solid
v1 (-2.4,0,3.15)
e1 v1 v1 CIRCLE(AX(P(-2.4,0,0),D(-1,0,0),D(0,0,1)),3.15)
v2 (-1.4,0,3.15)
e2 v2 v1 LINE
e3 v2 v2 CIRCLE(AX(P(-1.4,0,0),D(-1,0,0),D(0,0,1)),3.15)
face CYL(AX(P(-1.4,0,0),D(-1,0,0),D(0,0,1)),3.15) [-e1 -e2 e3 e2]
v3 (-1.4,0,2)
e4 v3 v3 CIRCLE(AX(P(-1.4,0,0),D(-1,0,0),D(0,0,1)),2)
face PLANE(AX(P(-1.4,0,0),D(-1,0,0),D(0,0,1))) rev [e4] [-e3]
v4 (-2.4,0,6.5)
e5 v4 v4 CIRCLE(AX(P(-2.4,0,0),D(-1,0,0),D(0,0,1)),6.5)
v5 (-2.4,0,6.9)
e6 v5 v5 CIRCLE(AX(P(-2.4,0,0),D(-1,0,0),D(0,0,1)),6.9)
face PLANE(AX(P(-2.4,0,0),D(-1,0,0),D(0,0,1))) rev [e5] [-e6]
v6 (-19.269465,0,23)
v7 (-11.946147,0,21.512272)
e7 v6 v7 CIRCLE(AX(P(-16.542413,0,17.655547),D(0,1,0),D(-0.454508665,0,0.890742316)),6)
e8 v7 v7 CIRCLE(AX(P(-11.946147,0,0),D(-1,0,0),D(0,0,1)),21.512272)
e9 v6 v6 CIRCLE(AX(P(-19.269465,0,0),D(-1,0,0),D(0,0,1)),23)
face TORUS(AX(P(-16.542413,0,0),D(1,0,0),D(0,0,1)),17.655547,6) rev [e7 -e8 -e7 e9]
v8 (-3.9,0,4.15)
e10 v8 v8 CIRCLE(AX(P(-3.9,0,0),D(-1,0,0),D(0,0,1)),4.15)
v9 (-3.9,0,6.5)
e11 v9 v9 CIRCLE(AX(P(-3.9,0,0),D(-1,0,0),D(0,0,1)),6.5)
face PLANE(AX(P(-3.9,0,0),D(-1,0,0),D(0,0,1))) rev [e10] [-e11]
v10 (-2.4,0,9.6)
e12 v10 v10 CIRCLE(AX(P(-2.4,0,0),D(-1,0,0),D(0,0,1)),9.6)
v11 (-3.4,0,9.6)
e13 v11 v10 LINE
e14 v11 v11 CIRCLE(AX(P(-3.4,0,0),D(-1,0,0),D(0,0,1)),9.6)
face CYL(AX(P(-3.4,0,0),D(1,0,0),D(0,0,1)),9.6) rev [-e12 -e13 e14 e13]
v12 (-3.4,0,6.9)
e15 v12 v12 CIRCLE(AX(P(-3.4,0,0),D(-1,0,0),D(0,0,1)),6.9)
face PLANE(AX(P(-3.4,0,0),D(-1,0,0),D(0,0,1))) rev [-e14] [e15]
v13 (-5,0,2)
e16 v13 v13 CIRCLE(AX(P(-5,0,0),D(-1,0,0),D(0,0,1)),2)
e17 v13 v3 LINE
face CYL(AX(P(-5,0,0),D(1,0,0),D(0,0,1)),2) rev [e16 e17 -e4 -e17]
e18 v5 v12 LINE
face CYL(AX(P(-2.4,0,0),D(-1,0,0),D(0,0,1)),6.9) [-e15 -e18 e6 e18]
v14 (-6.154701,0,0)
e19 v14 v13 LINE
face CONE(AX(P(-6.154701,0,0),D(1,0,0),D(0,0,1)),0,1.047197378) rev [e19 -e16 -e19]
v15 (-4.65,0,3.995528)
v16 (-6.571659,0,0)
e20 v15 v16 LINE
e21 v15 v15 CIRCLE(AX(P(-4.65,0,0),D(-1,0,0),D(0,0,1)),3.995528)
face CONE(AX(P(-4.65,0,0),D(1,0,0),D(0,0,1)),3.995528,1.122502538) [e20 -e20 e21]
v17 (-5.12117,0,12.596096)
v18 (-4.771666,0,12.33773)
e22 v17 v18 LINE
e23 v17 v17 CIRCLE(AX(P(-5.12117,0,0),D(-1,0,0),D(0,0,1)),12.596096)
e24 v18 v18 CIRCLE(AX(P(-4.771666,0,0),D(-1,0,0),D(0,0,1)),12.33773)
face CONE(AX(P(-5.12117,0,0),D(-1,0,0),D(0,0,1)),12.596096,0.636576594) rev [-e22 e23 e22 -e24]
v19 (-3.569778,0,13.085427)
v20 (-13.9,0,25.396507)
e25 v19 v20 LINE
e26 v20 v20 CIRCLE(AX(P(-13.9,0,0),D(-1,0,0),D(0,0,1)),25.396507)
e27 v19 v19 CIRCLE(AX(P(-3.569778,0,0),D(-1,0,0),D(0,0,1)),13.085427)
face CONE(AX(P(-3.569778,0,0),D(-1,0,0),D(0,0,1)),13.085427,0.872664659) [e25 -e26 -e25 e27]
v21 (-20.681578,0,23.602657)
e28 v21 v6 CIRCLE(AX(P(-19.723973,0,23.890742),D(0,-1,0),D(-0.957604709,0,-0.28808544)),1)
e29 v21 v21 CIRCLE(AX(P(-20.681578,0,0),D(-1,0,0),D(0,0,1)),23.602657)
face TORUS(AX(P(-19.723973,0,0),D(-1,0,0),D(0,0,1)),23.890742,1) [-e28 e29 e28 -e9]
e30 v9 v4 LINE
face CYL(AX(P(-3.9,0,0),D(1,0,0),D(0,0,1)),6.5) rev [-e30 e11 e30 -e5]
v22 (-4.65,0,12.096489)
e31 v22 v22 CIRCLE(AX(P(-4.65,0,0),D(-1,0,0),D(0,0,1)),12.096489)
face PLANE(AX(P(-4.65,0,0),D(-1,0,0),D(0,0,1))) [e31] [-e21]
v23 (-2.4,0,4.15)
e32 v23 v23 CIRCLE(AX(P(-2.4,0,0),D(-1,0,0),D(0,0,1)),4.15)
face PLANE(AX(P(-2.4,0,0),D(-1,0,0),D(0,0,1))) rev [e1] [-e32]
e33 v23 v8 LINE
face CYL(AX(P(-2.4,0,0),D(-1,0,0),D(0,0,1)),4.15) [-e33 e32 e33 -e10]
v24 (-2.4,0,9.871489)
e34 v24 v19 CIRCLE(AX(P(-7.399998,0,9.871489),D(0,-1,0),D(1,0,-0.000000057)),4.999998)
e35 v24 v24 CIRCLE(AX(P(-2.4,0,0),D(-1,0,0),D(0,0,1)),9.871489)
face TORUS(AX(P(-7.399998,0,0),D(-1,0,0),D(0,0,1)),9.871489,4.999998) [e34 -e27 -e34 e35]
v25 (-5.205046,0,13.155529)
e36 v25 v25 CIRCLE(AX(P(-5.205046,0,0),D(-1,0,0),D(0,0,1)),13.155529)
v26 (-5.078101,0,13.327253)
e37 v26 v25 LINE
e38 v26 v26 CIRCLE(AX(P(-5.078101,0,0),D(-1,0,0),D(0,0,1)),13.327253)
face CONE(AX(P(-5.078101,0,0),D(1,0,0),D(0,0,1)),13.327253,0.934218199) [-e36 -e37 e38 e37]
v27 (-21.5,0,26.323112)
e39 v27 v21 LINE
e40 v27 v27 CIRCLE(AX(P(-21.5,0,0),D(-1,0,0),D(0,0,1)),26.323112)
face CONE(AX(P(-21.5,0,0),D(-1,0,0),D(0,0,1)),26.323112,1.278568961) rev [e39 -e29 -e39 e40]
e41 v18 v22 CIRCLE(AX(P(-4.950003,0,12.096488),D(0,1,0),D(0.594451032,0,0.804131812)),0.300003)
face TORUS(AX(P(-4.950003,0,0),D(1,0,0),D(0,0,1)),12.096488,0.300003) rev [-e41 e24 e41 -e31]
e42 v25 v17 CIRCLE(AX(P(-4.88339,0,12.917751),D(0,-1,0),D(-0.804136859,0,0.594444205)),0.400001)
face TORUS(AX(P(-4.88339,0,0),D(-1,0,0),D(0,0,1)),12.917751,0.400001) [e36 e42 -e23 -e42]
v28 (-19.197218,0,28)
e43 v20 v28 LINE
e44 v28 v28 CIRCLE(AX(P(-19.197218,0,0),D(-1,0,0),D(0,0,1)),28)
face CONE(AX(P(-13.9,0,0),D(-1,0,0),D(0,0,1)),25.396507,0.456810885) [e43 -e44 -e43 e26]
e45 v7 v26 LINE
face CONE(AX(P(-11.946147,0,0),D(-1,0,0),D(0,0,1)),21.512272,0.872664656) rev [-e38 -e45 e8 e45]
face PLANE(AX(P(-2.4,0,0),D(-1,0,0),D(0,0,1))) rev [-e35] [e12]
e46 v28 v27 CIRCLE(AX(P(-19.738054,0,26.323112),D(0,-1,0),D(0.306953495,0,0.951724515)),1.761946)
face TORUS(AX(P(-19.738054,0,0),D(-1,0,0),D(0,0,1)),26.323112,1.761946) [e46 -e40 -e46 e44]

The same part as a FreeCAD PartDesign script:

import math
import FreeCAD as App
import Part
import Sketcher

V = App.Vector
Q = App.Units.Quantity

doc = App.newDocument("Part")
params = doc.addObject("Spreadsheet::Sheet", "Params")
for row, (alias, value) in enumerate([
    ("sketch1_radius", "4.999998 mm"),
    ("sketch1_radius2", "1 mm"),
    ("sketch1_radius3", "6 mm"),
    ("sketch1_radius4", "0.400001 mm"),
    ("sketch1_width", "1 mm"),
    ("revolution_angle", "360 deg"),
], start=1):
    params.set(f"A{row}", alias)
    params.set(f"B{row}", "=" + value)
    params.setAlias(f"B{row}", alias)

body = doc.addObject("PartDesign::Body", "Body")

sketch1 = body.newObject("Sketcher::SketchObject", "Sketch")
sketch1.AttachmentSupport = (doc.getObject("XZ_Plane"), [""])
sketch1.MapMode = "FlatFace"
sketch1.addGeometry([
    Part.LineSegment(V(-5, 2, 0), V(-1.4, 2, 0)),
    Part.LineSegment(V(-1.4, 2, 0), V(-1.4, 3.15, 0)),
    Part.LineSegment(V(-1.4, 3.15, 0), V(-2.4, 3.15, 0)),
    Part.LineSegment(V(-2.4, 3.15, 0), V(-2.4, 4.15, 0)),
    Part.LineSegment(V(-2.4, 4.15, 0), V(-3.9, 4.15, 0)),
    Part.LineSegment(V(-3.9, 4.15, 0), V(-3.9, 6.5, 0)),
    Part.LineSegment(V(-3.9, 6.5, 0), V(-2.4, 6.5, 0)),
    Part.LineSegment(V(-2.4, 6.5, 0), V(-2.4, 6.9, 0)),
    Part.LineSegment(V(-2.4, 6.9, 0), V(-3.4, 6.9, 0)),
    Part.LineSegment(V(-3.4, 6.9, 0), V(-3.4, 9.6, 0)),
    Part.LineSegment(V(-3.4, 9.6, 0), V(-2.4, 9.6, 0)),
    Part.LineSegment(V(-2.4, 9.6, 0), V(-2.4, 9.87, 0)),
    Part.ArcOfCircle(Part.Circle(V(-7.4, 9.87, 0), V(0, 0, 1), 5), math.radians(0), math.radians(40)),
    Part.LineSegment(V(-3.57, 13.09, 0), V(-13.9, 25.4, 0)),
    Part.LineSegment(V(-13.9, 25.4, 0), V(-19.2, 28, 0)),
    Part.ArcOfCircle(Part.Circle(V(-19.74, 26.32, 0), V(0, 0, 1), 1.76), math.radians(72), math.radians(180)),
    Part.LineSegment(V(-21.5, 26.32, 0), V(-20.68, 23.6, 0)),
    Part.ArcOfCircle(Part.Circle(V(-19.72, 23.89, 0), V(0, 0, 1), 1), math.radians(-163), math.radians(-63)),
    Part.ArcOfCircle(Part.Circle(V(-16.54, 17.66, 0), V(0, 0, 1), 6), math.radians(40), math.radians(117)),
    Part.LineSegment(V(-11.95, 21.51, 0), V(-5.08, 13.33, 0)),
    Part.LineSegment(V(-5.08, 13.33, 0), V(-5.21, 13.16, 0)),
    Part.ArcOfCircle(Part.Circle(V(-4.88, 12.92, 0), V(0, 0, 1), 0.4), math.radians(144), math.radians(234)),
    Part.LineSegment(V(-5.12, 12.6, 0), V(-4.77, 12.34, 0)),
    Part.ArcOfCircle(Part.Circle(V(-4.95, 12.1, 0), V(0, 0, 1), 0.3), math.radians(0), math.radians(54)),
    Part.LineSegment(V(-4.65, 12.1, 0), V(-4.65, 4, 0)),
    Part.LineSegment(V(-4.65, 4, 0), V(-6.57, 0, 0)),
    Part.LineSegment(V(-6.57, 0, 0), V(-6.15, 0, 0)),
    Part.LineSegment(V(-6.15, 0, 0), V(-5, 2, 0)),
], False)
sketch1.addConstraint([
    Sketcher.Constraint("Coincident", 0, 2, 1, 1),
    Sketcher.Constraint("Coincident", 1, 2, 2, 1),
    Sketcher.Constraint("Coincident", 2, 2, 3, 1),
    Sketcher.Constraint("Coincident", 3, 2, 4, 1),
    Sketcher.Constraint("Coincident", 4, 2, 5, 1),
    Sketcher.Constraint("Coincident", 5, 2, 6, 1),
    Sketcher.Constraint("Coincident", 6, 2, 7, 1),
    Sketcher.Constraint("Coincident", 7, 2, 8, 1),
    Sketcher.Constraint("Coincident", 8, 2, 9, 1),
    Sketcher.Constraint("Coincident", 9, 2, 10, 1),
    Sketcher.Constraint("Coincident", 10, 2, 11, 1),
    Sketcher.Constraint("Tangent", 11, 2, 12, 1),
    Sketcher.Constraint("Tangent", 12, 2, 13, 1),
    Sketcher.Constraint("Coincident", 13, 2, 14, 1),
    Sketcher.Constraint("Coincident", 14, 2, 15, 1),
    Sketcher.Constraint("Coincident", 15, 2, 16, 1),
    Sketcher.Constraint("Tangent", 16, 2, 17, 1),
    Sketcher.Constraint("Tangent", 17, 2, 18, 2),
    Sketcher.Constraint("Tangent", 18, 1, 19, 1),
    Sketcher.Constraint("Coincident", 19, 2, 20, 1),
    Sketcher.Constraint("Coincident", 20, 2, 21, 1),
    Sketcher.Constraint("Tangent", 21, 2, 22, 1),
    Sketcher.Constraint("Coincident", 22, 2, 23, 2),
    Sketcher.Constraint("Coincident", 23, 1, 24, 1),
    Sketcher.Constraint("Coincident", 24, 2, 25, 1),
    Sketcher.Constraint("Coincident", 25, 2, 26, 1),
    Sketcher.Constraint("Coincident", 26, 2, 27, 1),
    Sketcher.Constraint("Coincident", 27, 2, 0, 1),
    Sketcher.Constraint("Horizontal", 0),
    Sketcher.Constraint("Vertical", 1),
    Sketcher.Constraint("Horizontal", 2),
    Sketcher.Constraint("Vertical", 3),
    Sketcher.Constraint("Horizontal", 4),
    Sketcher.Constraint("Vertical", 5),
    Sketcher.Constraint("Horizontal", 6),
    Sketcher.Constraint("Vertical", 7),
    Sketcher.Constraint("Horizontal", 8),
    Sketcher.Constraint("Vertical", 9),
    Sketcher.Constraint("Horizontal", 10),
    Sketcher.Constraint("Vertical", 11),
    Sketcher.Constraint("Vertical", 24),
    Sketcher.Constraint("Horizontal", 26),
    Sketcher.Constraint("PointOnObject", 25, 2, -1),
    Sketcher.Constraint("Parallel", 13, 19),
    Sketcher.Constraint("Perpendicular", 20, 22),
    Sketcher.Constraint("Vertical", 3, 2, 6, 2),
    Sketcher.Constraint("Vertical", 7, 2, 10, 2),
    Sketcher.Constraint("Equal", 2, 8),
    Sketcher.Constraint("Equal", 10, 3),
    Sketcher.Constraint("Radius", 12, Q("4.999998 mm")),
    Sketcher.Constraint("Radius", 17, Q("1 mm")),
    Sketcher.Constraint("Radius", 18, Q("6 mm")),
    Sketcher.Constraint("Radius", 21, Q("0.400001 mm")),
    Sketcher.Constraint("DistanceX", 2, 2, 2, 1, Q("1 mm")),
    Sketcher.Constraint("Angle", 13, Q("129.999998 deg")),
    Sketcher.Constraint("Angle", 27, Q("59.99999 deg")),
    Sketcher.Constraint("DistanceX", 0, 1, 0, 2, Q("3.6 mm")),
    Sketcher.Constraint("DistanceX", 4, 2, 4, 1, Q("1.5 mm")),
    Sketcher.Constraint("DistanceY", 7, 1, 7, 2, Q("0.4 mm")),
    Sketcher.Constraint("DistanceY", 9, 1, 9, 2, Q("2.7 mm")),
    Sketcher.Constraint("DistanceY", -1, 1, 0, 2, Q("2 mm")),
    Sketcher.Constraint("DistanceY", -1, 1, 14, 2, Q("28 mm")),
    Sketcher.Constraint("DistanceY", -1, 1, 17, 2, Q("23 mm")),
    Sketcher.Constraint("DistanceX", 27, 2, -1, 1, Q("5 mm")),
    Sketcher.Constraint("DistanceY", 1, 1, 1, 2, Q("1.15 mm")),
    Sketcher.Constraint("DistanceY", 5, 1, 5, 2, Q("2.35 mm")),
    Sketcher.Constraint("DistanceX", 13, 2, -1, 1, Q("13.9 mm")),
    Sketcher.Constraint("DistanceX", 15, 2, -1, 1, Q("21.5 mm")),
    Sketcher.Constraint("DistanceX", 23, 1, -1, 1, Q("4.65 mm")),
    Sketcher.Constraint("Radius", 15, Q("1.761946 mm")),
    Sketcher.Constraint("Radius", 23, Q("0.300003 mm")),
    Sketcher.Constraint("DistanceY", 12, 3, 23, 3, Q("2.224999 mm")),
    Sketcher.Constraint("DistanceX", 26, 1, 26, 2, Q("0.416958 mm")),
    Sketcher.Constraint("DistanceY", 11, 1, 11, 2, Q("0.271489 mm")),
    Sketcher.Constraint("DistanceY", 24, 2, 24, 1, Q("8.100961 mm")),
    Sketcher.Constraint("DistanceX", 19, 2, -1, 1, Q("5.078101 mm")),
    Sketcher.Constraint("DistanceY", 12, 2, 20, 2, Q("0.070102 mm")),
    Sketcher.Constraint("DistanceY", 22, 2, 20, 2, Q("0.817799 mm")),
    Sketcher.Constraint("Distance", 14, Q("5.902431 mm")),
    Sketcher.Constraint("Distance", 20, Q("0.213551 mm")),
    Sketcher.Constraint("DistanceX", 21, 3, -1, 1, Q("4.88339 mm")),
    Sketcher.Constraint("DistanceY", -1, 1, 15, 2, Q("26.323112 mm")),
    Sketcher.Constraint("DistanceY", -1, 1, 18, 1, Q("21.512272 mm")),
    Sketcher.Constraint("DistanceY", -1, 1, 23, 1, Q("12.096489 mm")),
])
sketch1.setExpression("Constraints[49]", "Params.sketch1_radius")
sketch1.setExpression("Constraints[50]", "Params.sketch1_radius2")
sketch1.setExpression("Constraints[51]", "Params.sketch1_radius3")
sketch1.setExpression("Constraints[52]", "Params.sketch1_radius4")
sketch1.setExpression("Constraints[53]", "Params.sketch1_width")
revolution = body.newObject("PartDesign::Revolution", "Revolution")
revolution.Profile = sketch1
revolution.ReferenceAxis = (sketch1, ["H_Axis"])
revolution.setExpression("Angle", "Params.revolution_angle")

doc.recompute()
